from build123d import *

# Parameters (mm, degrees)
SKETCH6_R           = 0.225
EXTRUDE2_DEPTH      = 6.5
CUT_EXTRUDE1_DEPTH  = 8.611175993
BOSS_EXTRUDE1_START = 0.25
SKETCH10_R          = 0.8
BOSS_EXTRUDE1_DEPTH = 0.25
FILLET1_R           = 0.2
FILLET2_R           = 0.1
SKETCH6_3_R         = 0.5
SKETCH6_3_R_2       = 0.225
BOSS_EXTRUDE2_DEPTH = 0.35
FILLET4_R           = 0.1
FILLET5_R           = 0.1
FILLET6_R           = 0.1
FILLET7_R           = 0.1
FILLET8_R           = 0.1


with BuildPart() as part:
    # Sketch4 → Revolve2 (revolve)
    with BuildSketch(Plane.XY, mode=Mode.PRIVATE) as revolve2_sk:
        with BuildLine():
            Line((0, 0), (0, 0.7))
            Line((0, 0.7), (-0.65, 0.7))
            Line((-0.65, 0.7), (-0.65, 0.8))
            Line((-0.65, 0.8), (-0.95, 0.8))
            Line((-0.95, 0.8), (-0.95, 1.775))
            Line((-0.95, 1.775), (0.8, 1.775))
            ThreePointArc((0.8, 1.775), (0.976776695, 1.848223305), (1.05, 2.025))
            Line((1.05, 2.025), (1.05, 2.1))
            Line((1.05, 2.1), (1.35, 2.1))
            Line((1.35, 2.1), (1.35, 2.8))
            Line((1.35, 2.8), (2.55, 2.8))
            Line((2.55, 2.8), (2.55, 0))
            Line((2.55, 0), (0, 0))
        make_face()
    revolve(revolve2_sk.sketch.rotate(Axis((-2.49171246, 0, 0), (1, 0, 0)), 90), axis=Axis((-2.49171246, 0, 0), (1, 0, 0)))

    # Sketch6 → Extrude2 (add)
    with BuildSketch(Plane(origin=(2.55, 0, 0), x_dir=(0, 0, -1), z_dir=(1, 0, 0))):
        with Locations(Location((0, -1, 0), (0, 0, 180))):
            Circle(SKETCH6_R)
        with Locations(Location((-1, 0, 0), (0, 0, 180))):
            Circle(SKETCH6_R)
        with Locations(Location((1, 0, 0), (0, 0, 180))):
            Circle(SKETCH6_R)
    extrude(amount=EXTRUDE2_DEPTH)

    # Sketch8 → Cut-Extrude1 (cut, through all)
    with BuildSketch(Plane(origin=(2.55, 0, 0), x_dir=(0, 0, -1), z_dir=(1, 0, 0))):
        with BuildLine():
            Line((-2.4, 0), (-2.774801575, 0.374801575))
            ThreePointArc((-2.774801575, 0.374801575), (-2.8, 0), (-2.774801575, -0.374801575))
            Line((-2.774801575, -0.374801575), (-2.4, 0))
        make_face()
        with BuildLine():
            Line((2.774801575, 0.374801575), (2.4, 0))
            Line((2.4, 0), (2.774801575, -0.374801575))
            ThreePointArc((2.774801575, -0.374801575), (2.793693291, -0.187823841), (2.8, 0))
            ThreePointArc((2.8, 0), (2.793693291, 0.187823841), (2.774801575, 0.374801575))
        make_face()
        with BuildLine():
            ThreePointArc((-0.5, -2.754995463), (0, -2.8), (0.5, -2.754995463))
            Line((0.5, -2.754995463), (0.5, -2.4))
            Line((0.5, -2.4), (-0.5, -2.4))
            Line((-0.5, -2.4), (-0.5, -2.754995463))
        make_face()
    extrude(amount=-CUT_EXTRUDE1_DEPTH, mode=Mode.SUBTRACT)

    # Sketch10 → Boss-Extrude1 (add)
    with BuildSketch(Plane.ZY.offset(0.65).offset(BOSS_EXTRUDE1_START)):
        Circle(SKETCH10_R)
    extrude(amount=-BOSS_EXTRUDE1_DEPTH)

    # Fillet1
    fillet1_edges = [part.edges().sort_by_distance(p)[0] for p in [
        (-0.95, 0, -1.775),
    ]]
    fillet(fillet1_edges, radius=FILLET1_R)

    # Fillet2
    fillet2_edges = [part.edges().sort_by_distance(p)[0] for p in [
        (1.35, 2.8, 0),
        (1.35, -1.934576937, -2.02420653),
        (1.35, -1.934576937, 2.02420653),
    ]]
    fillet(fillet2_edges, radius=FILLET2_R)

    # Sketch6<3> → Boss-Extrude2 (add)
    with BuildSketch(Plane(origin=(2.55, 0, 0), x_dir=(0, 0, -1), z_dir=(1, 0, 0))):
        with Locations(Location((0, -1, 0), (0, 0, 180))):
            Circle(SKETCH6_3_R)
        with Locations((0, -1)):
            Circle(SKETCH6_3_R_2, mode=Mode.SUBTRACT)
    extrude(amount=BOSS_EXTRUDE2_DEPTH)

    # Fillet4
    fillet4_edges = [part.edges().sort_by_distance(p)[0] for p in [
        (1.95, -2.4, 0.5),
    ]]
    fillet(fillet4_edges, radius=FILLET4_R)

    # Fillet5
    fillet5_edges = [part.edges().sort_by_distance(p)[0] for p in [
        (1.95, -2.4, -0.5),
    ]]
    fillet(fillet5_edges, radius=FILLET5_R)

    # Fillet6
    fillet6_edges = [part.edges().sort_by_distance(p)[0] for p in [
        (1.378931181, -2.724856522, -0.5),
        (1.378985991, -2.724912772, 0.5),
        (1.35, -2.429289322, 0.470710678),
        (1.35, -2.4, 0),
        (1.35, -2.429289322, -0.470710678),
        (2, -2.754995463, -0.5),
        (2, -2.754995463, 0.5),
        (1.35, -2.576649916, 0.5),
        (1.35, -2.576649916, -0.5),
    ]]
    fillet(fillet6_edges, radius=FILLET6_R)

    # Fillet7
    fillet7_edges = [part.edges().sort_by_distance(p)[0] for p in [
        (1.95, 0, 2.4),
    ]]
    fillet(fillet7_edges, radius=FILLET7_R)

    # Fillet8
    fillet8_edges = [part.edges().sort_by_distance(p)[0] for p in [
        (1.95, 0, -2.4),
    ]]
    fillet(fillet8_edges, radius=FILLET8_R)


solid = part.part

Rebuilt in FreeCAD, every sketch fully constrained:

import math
import FreeCAD as App
import Part
import Sketcher
from FreeCAD import Vector


def edges_at(feature, points):
    """Names of the edges that pass closest to the given points."""
    edges = feature.Shape.Edges
    near = lambda p: min(range(len(edges)), key=lambda i: edges[i].distToShape(Part.Vertex(*p))[0])
    return sorted({f"Edge{near(p) + 1}" for p in points})

doc = App.newDocument("Part")
params = doc.addObject("Spreadsheet::Sheet", "Params")
for row, (alias, value) in enumerate([
    ("sketch1_radius", "0.25 mm"),
    ("sketch1_width", "1.2 mm"),
    ("sketch1_width2", "0.3 mm"),
    ("sketch1_height", "0.7 mm"),
    ("sketch1_height2", "2.8 mm"),
    ("revolution_angle", "360 deg"),
    ("sketch2_diameter", "0.45 mm"),
    ("pad1_length", "6.5 mm"),
    ("sketch3_radius", "2.8 mm"),
    ("sketch3_height", "1 mm"),
    ("sketch4_diameter", "1.6 mm"),
    ("pad2_length", "0.25 mm"),
    ("fillet_radius", "0.2 mm"),
    ("fillet2_radius", "0.1 mm"),
    ("sketch5_diameter", "1 mm"),
    ("sketch5_diameter2", "0.45 mm"),
    ("pad3_length", "0.35 mm"),
    ("fillet3_radius", "0.1 mm"),
    ("fillet4_radius", "0.1 mm"),
    ("fillet5_radius", "0.1 mm"),
    ("fillet6_radius", "0.1 mm"),
    ("fillet7_radius", "0.1 mm"),
], start=1):
    params.set(f"A{row}", alias)
    params.set(f"B{row}", "=" + value)
    params.setAlias(f"B{row}", alias)

body = doc.addObject("PartDesign::Body", "Body")

# Sketch on XY plane
sketch1 = doc.addObject("Sketcher::SketchObject", "Sketch")
body.addObject(sketch1)
sketch1.AttachmentSupport = (doc.XY_Plane, [""])
sketch1.MapMode = "FlatFace"
sketch1.addGeometry([
    Part.LineSegment(Vector(0, 0.7, 0), Vector(0, 0, 0)),  # 0
    Part.LineSegment(Vector(0, 0, 0), Vector(2.55, 0, 0)),  # 1
    Part.LineSegment(Vector(2.55, 0, 0), Vector(2.55, 2.8, 0)),  # 2
    Part.LineSegment(Vector(2.55, 2.8, 0), Vector(1.35, 2.8, 0)),  # 3
    Part.LineSegment(Vector(1.35, 2.8, 0), Vector(1.35, 2.1, 0)),  # 4
    Part.LineSegment(Vector(1.35, 2.1, 0), Vector(1.05, 2.1, 0)),  # 5
    Part.LineSegment(Vector(1.05, 2.1, 0), Vector(1.05, 2.025, 0)),  # 6
    Part.ArcOfCircle(Part.Circle(Vector(0.8, 2.025, 0), Vector(0, 0, 1), 0.25), math.radians(-90), math.radians(0)),  # 7
    Part.LineSegment(Vector(0.8, 1.775, 0), Vector(-0.95, 1.775, 0)),  # 8
    Part.LineSegment(Vector(-0.95, 1.775, 0), Vector(-0.95, 0.8, 0)),  # 9
    Part.LineSegment(Vector(-0.95, 0.8, 0), Vector(-0.65, 0.8, 0)),  # 10
    Part.LineSegment(Vector(-0.65, 0.8, 0), Vector(-0.65, 0.7, 0)),  # 11
    Part.LineSegment(Vector(-0.65, 0.7, 0), Vector(0, 0.7, 0)),  # 12
], False)
sketch1.addConstraint([
    Sketcher.Constraint("Coincident", 0, 2, 1, 1),
    Sketcher.Constraint("Coincident", 1, 2, 2, 1),
    Sketcher.Constraint("Coincident", 2, 2, 3, 1),
    Sketcher.Constraint("Coincident", 3, 2, 4, 1),
    Sketcher.Constraint("Coincident", 4, 2, 5, 1),
    Sketcher.Constraint("Coincident", 5, 2, 6, 1),
    Sketcher.Constraint("Tangent", 6, 2, 7, 2),
    Sketcher.Constraint("Tangent", 7, 1, 8, 1),
    Sketcher.Constraint("Coincident", 8, 2, 9, 1),
    Sketcher.Constraint("Coincident", 9, 2, 10, 1),
    Sketcher.Constraint("Coincident", 10, 2, 11, 1),
    Sketcher.Constraint("Coincident", 11, 2, 12, 1),
    Sketcher.Constraint("Coincident", 12, 2, 0, 1),
    Sketcher.Constraint("Vertical", 0),
    Sketcher.Constraint("Horizontal", 1),
    Sketcher.Constraint("Vertical", 2),
    Sketcher.Constraint("Horizontal", 3),
    Sketcher.Constraint("Vertical", 4),
    Sketcher.Constraint("Horizontal", 5),
    Sketcher.Constraint("Vertical", 6),
    Sketcher.Constraint("Horizontal", 8),
    Sketcher.Constraint("Vertical", 9),
    Sketcher.Constraint("Horizontal", 10),
    Sketcher.Constraint("Vertical", 11),
    Sketcher.Constraint("Horizontal", 12),
    Sketcher.Constraint("Coincident", 0, 2, -1, 1),
    Sketcher.Constraint("Equal", 5, 10),
    Sketcher.Constraint("Equal", 0, 4),
    Sketcher.Constraint("Radius", 7, 0.25),
    Sketcher.Constraint("DistanceX", 3, 2, 3, 1, 1.2),
    Sketcher.Constraint("DistanceX", 5, 2, 5, 1, 0.3),
    Sketcher.Constraint("DistanceY", 0, 2, 0, 1, 0.7),
    Sketcher.Constraint("DistanceY", 2, 1, 2, 2, 2.8),
    Sketcher.Constraint("DistanceY", 11, 2, 11, 1, 0.1),
    Sketcher.Constraint("DistanceX", 8, 2, 6, 2, 2.0),
    Sketcher.Constraint("DistanceX", 1, 1, 1, 2, 2.55),
    Sketcher.Constraint("DistanceY", 6, 2, 6, 1, 0.075),
])
sketch1.setExpression("Constraints[28]", "Params.sketch1_radius")
sketch1.setExpression("Constraints[29]", "Params.sketch1_width")
sketch1.setExpression("Constraints[30]", "Params.sketch1_width2")
sketch1.setExpression("Constraints[31]", "Params.sketch1_height")
sketch1.setExpression("Constraints[32]", "Params.sketch1_height2")
revolution = doc.addObject("PartDesign::Revolution", "Revolution")
body.addObject(revolution)
revolution.Profile = sketch1
revolution.ReferenceAxis = (sketch1, ["H_Axis"])
revolution.setExpression("Angle", "Params.revolution_angle")

# Sketch on YZ plane
sketch2 = doc.addObject("Sketcher::SketchObject", "Sketch001")
body.addObject(sketch2)
sketch2.AttachmentSupport = (doc.YZ_Plane, [""])
sketch2.MapMode = "FlatFace"
sketch2.AttachmentOffset = App.Placement(Vector(0, 0, 2.55), App.Rotation())
sketch2.addGeometry([
    Part.Circle(Vector(-1, 0, 0), Vector(0, 0, 1), 0.225),
    Part.Circle(Vector(0, 1, 0), Vector(0, 0, 1), 0.225),
    Part.Circle(Vector(0, -1, 0), Vector(0, 0, 1), 0.225),
], False)
sketch2.addConstraint([
    Sketcher.Constraint("Equal", 0, 1),
    Sketcher.Constraint("Equal", 1, 2),
    Sketcher.Constraint("Symmetric", 1, 3, 2, 3, -1, 1),
    Sketcher.Constraint("PointOnObject", 0, 3, -1),
    Sketcher.Constraint("PointOnObject", 1, 3, -2),
    Sketcher.Constraint("Diameter", 0, 0.45),
    Sketcher.Constraint("DistanceX", 0, 3, -1, 1, 1.0),
    Sketcher.Constraint("DistanceY", -1, 1, 1, 3, 1.0),
])
sketch2.setExpression("Constraints[5]", "Params.sketch2_diameter")
pad1 = doc.addObject("PartDesign::Pad", "Pad")
body.addObject(pad1)
pad1.Profile = sketch2
pad1.setExpression("Length", "Params.pad1_length")

# Sketch on YZ plane
sketch3 = doc.addObject("Sketcher::SketchObject", "Sketch002")
body.addObject(sketch3)
sketch3.AttachmentSupport = (doc.YZ_Plane, [""])
sketch3.MapMode = "FlatFace"
sketch3.AttachmentOffset = App.Placement(Vector(0, 0, 2.55), App.Rotation())
sketch3.addGeometry([
    Part.LineSegment(Vector(0, 2.4, 0), Vector(0.374802, 2.774802, 0)),  # 0
    Part.ArcOfCircle(Part.Circle(Vector(0, 0, 0), Vector(0, 0, 1), 2.8), math.radians(82.307428), math.radians(97.692572)),  # 1
    Part.LineSegment(Vector(-0.374802, 2.774802, 0), Vector(0, 2.4, 0)),  # 2
    Part.LineSegment(Vector(0.374802, -2.774802, 0), Vector(0, -2.4, 0)),  # 3
    Part.LineSegment(Vector(0, -2.4, 0), Vector(-0.374802, -2.774802, 0)),  # 4
    Part.ArcOfCircle(Part.Circle(Vector(0, 0, 0), Vector(0, 0, 1), 2.8), math.radians(-97.692572), math.radians(-90)),  # 5
    Part.ArcOfCircle(Part.Circle(Vector(0, 0, 0), Vector(0, 0, 1), 2.8), math.radians(-90), math.radians(-82.307428)),  # 6
    Part.ArcOfCircle(Part.Circle(Vector(0, 0, 0), Vector(0, 0, 1), 2.8), math.radians(169.713439), math.radians(190.286561)),  # 7
    Part.LineSegment(Vector(-2.754995, -0.5, 0), Vector(-2.4, -0.5, 0)),  # 8
    Part.LineSegment(Vector(-2.4, -0.5, 0), Vector(-2.4, 0.5, 0)),  # 9
    Part.LineSegment(Vector(-2.4, 0.5, 0), Vector(-2.754995, 0.5, 0)),  # 10
], False)
sketch3.addConstraint([
    Sketcher.Constraint("Coincident", 0, 2, 1, 1),
    Sketcher.Constraint("Coincident", 1, 2, 2, 1),
    Sketcher.Constraint("Coincident", 2, 2, 0, 1),
    Sketcher.Constraint("Coincident", 3, 2, 4, 1),
    Sketcher.Constraint("Coincident", 4, 2, 5, 1),
    Sketcher.Constraint("Tangent", 5, 2, 6, 1),
    Sketcher.Constraint("Coincident", 6, 2, 3, 1),
    Sketcher.Constraint("Coincident", 7, 2, 8, 1),
    Sketcher.Constraint("Coincident", 8, 2, 9, 1),
    Sketcher.Constraint("Coincident", 9, 2, 10, 1),
    Sketcher.Constraint("Coincident", 10, 2, 7, 1),
    Sketcher.Constraint("Horizontal", 8),
    Sketcher.Constraint("Vertical", 9),
    Sketcher.Constraint("Horizontal", 10),
    Sketcher.Constraint("Coincident", 1, 3, -1, 1),
    Sketcher.Constraint("Coincident", 5, 3, -1, 1),
    Sketcher.Constraint("Coincident", 7, 3, -1, 1),
    Sketcher.Constraint("Equal", 1, 5),
    Sketcher.Constraint("Equal", 5, 6),
    Sketcher.Constraint("Equal", 6, 7),
    Sketcher.Constraint("Symmetric", 2, 2, 3, 2, -1, 1),
    Sketcher.Constraint("PointOnObject", 2, 2, -2),
    Sketcher.Constraint("PointOnObject", 5, 2, -2),
    Sketcher.Constraint("Perpendicular", 0, 2),
    Sketcher.Constraint("Parallel", 2, 3),
    Sketcher.Constraint("Perpendicular", 3, 4),
    Sketcher.Constraint("Horizontal", 0, 2, 1, 2),
    Sketcher.Constraint("Vertical", 7, 2, 10, 2),
    Sketcher.Constraint("Radius", 1, 2.8),
    Sketcher.Constraint("DistanceY", 9, 1, 9, 2, 1.0),
    Sketcher.Constraint("DistanceY", -1, 1, 2, 2, 2.4),
    Sketcher.Constraint("DistanceX", 8, 2, -1, 1, 2.4),
])
sketch3.setExpression("Constraints[28]", "Params.sketch3_radius")
sketch3.setExpression("Constraints[29]", "Params.sketch3_height")
pocket1 = doc.addObject("PartDesign::Pocket", "Pocket")
body.addObject(pocket1)
pocket1.Profile = sketch3
pocket1.Type = "ThroughAll"

# Sketch on YZ plane
sketch4 = doc.addObject("Sketcher::SketchObject", "Sketch003")
body.addObject(sketch4)
sketch4.AttachmentSupport = (doc.YZ_Plane, [""])
sketch4.MapMode = "FlatFace"
sketch4.AttachmentOffset = App.Placement(Vector(0, 0, -0.9), App.Rotation())
sketch4.addGeometry(Part.Circle(Vector(0, 0, 0), Vector(0, 0, 1), 0.8), False)
sketch4.addConstraint([
    Sketcher.Constraint("Coincident", 0, 3, -1, 1),
    Sketcher.Constraint("Diameter", 0, 1.6),
])
sketch4.setExpression("Constraints[1]", "Params.sketch4_diameter")
pad2 = doc.addObject("PartDesign::Pad", "Pad001")
body.addObject(pad2)
pad2.Profile = sketch4
pad2.setExpression("Length", "Params.pad2_length")
doc.recompute()

fillet = doc.addObject("PartDesign::Fillet", "Fillet")
body.addObject(fillet)
fillet.Base = (pad2, edges_at(pad2, [(-0.95, 0, -1.775)]))
fillet.setExpression("Radius", "Params.fillet_radius")
doc.recompute()

fillet2 = doc.addObject("PartDesign::Fillet", "Fillet001")
body.addObject(fillet2)
fillet2.Base = (fillet, edges_at(fillet, [(1.35, 2.8, 0), (1.35, -1.935, -2.024), (1.35, -1.935, 2.024)]))
fillet2.setExpression("Radius", "Params.fillet2_radius")

# Sketch on YZ plane
sketch5 = doc.addObject("Sketcher::SketchObject", "Sketch004")
body.addObject(sketch5)
sketch5.AttachmentSupport = (doc.YZ_Plane, [""])
sketch5.MapMode = "FlatFace"
sketch5.AttachmentOffset = App.Placement(Vector(0, 0, 2.55), App.Rotation())
sketch5.addGeometry([
    Part.Circle(Vector(-1, 0, 0), Vector(0, 0, 1), 0.5),
    Part.Circle(Vector(-1, 0, 0), Vector(0, 0, 1), 0.225),
], False)
sketch5.addConstraint([
    Sketcher.Constraint("Coincident", 1, 3, 0, 3),
    Sketcher.Constraint("PointOnObject", 0, 3, -1),
    Sketcher.Constraint("Diameter", 0, 1.0),
    Sketcher.Constraint("Diameter", 1, 0.45),
    Sketcher.Constraint("DistanceX", 0, 3, -1, 1, 1.0),
])
sketch5.setExpression("Constraints[2]", "Params.sketch5_diameter")
sketch5.setExpression("Constraints[3]", "Params.sketch5_diameter2")
pad3 = doc.addObject("PartDesign::Pad", "Pad002")
body.addObject(pad3)
pad3.Profile = sketch5
pad3.setExpression("Length", "Params.pad3_length")
doc.recompute()

fillet3 = doc.addObject("PartDesign::Fillet", "Fillet002")
body.addObject(fillet3)
fillet3.Base = (pad3, edges_at(pad3, [(1.95, -2.4, 0.5)]))
fillet3.setExpression("Radius", "Params.fillet3_radius")
doc.recompute()

fillet4 = doc.addObject("PartDesign::Fillet", "Fillet003")
body.addObject(fillet4)
fillet4.Base = (fillet3, edges_at(fillet3, [(1.95, -2.4, -0.5)]))
fillet4.setExpression("Radius", "Params.fillet4_radius")
doc.recompute()

fillet5 = doc.addObject("PartDesign::Fillet", "Fillet004")
body.addObject(fillet5)
fillet5.Base = (fillet4, edges_at(fillet4, [
    (1.379, -2.725, -0.5),
    (1.379, -2.725, 0.5),
    (1.35, -2.429, 0.471),
    (1.35, -2.4, 0),
    (1.35, -2.429, -0.471),
    (2, -2.755, -0.5),
    (2, -2.755, 0.5),
    (1.35, -2.577, 0.5),
    (1.35, -2.577, -0.5),
]))
fillet5.setExpression("Radius", "Params.fillet5_radius")
doc.recompute()

fillet6 = doc.addObject("PartDesign::Fillet", "Fillet005")
body.addObject(fillet6)
fillet6.Base = (fillet5, edges_at(fillet5, [(1.95, 0, 2.4)]))
fillet6.setExpression("Radius", "Params.fillet6_radius")
doc.recompute()

fillet7 = doc.addObject("PartDesign::Fillet", "Fillet006")
body.addObject(fillet7)
fillet7.Base = (fillet6, edges_at(fillet6, [(1.95, 0, -2.4)]))
fillet7.setExpression("Radius", "Params.fillet7_radius")

doc.recompute()
